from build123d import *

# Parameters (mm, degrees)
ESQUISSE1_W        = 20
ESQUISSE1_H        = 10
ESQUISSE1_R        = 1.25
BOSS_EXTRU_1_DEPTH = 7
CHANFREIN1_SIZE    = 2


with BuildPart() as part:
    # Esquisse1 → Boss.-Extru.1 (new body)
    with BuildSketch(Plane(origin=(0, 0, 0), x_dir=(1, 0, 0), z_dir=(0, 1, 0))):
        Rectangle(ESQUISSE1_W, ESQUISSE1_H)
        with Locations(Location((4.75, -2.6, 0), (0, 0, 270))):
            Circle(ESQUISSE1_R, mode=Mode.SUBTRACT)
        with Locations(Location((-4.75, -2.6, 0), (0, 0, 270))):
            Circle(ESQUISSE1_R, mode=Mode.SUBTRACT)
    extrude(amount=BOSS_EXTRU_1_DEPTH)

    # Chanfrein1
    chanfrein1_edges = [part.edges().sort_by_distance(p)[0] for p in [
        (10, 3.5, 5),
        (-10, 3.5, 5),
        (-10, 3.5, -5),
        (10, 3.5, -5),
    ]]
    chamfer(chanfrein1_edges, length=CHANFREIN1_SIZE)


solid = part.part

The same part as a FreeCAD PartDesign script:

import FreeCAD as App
import Part
import Sketcher
Q = App.Units.Quantity


def edges_at(feature, points):
    """Names of the edges that pass closest to the given points."""
    edges = feature.Shape.Edges
    near = lambda p: min(range(len(edges)), key=lambda i: edges[i].distToShape(Part.Vertex(*p))[0])
    return sorted({f"Edge{near(p) + 1}" for p in points})

doc = App.newDocument("Part")
body = doc.addObject("PartDesign::Body", "Body")

# Sketch on XZ plane
sketch1 = body.newObject("Sketcher::SketchObject", "Sketch")
sketch1.AttachmentSupport = (doc.getObject("XZ_Plane"), [""])
sketch1.MapMode = "FlatFace"
sketch1.addGeometry([
    Part.LineSegment(App.Vector(-10, -5, 0), App.Vector(-10, 5, 0)),  # 0
    Part.LineSegment(App.Vector(-10, 5, 0), App.Vector(10, 5, 0)),  # 1
    Part.LineSegment(App.Vector(10, 5, 0), App.Vector(10, -5, 0)),  # 2
    Part.LineSegment(App.Vector(10, -5, 0), App.Vector(-10, -5, 0)),  # 3
    Part.Circle(App.Vector(-4.8, 2.6, 0), App.Vector(0, 0, 1), 1.2),  # 4
    Part.Circle(App.Vector(4.8, 2.6, 0), App.Vector(0, 0, 1), 1.2),  # 5
], False)
sketch1.addConstraint([
    Sketcher.Constraint("Coincident", 0, 2, 1, 1),
    Sketcher.Constraint("Coincident", 1, 2, 2, 1),
    Sketcher.Constraint("Coincident", 2, 2, 3, 1),
    Sketcher.Constraint("Coincident", 3, 2, 0, 1),
    Sketcher.Constraint("Vertical", 0),
    Sketcher.Constraint("Horizontal", 1),
    Sketcher.Constraint("Vertical", 2),
    Sketcher.Constraint("Horizontal", 3),
    Sketcher.Constraint("Equal", 4, 5),
    Sketcher.Constraint("Symmetric", 0, 2, 2, 2, -1, 1),
    Sketcher.Constraint("Symmetric", 4, 3, 5, 3, -2),
    Sketcher.Constraint("Diameter", 4, Q("2.5 mm")),
    Sketcher.Constraint("DistanceX", 1, 1, 1, 2, Q("20 mm")),
    Sketcher.Constraint("DistanceY", 0, 1, 0, 2, Q("10 mm")),
    Sketcher.Constraint("DistanceY", -1, 1, 4, 3, Q("2.6 mm")),
    Sketcher.Constraint("DistanceX", 4, 3, 5, 3, Q("9.5 mm")),
])
pad1 = body.newObject("PartDesign::Pad", "Pad")
pad1.Profile = sketch1
pad1.Length = 7
pad1.Reversed = True
doc.recompute()

chamfer = body.newObject("PartDesign::Chamfer", "Chamfer")
chamfer.Base = (pad1, edges_at(pad1, [
    (10, 3.5, 5),
    (-10, 3.5, 5),
    (-10, 3.5, -5),
    (10, 3.5, -5),
]))
chamfer.Size = 2

doc.recompute()
